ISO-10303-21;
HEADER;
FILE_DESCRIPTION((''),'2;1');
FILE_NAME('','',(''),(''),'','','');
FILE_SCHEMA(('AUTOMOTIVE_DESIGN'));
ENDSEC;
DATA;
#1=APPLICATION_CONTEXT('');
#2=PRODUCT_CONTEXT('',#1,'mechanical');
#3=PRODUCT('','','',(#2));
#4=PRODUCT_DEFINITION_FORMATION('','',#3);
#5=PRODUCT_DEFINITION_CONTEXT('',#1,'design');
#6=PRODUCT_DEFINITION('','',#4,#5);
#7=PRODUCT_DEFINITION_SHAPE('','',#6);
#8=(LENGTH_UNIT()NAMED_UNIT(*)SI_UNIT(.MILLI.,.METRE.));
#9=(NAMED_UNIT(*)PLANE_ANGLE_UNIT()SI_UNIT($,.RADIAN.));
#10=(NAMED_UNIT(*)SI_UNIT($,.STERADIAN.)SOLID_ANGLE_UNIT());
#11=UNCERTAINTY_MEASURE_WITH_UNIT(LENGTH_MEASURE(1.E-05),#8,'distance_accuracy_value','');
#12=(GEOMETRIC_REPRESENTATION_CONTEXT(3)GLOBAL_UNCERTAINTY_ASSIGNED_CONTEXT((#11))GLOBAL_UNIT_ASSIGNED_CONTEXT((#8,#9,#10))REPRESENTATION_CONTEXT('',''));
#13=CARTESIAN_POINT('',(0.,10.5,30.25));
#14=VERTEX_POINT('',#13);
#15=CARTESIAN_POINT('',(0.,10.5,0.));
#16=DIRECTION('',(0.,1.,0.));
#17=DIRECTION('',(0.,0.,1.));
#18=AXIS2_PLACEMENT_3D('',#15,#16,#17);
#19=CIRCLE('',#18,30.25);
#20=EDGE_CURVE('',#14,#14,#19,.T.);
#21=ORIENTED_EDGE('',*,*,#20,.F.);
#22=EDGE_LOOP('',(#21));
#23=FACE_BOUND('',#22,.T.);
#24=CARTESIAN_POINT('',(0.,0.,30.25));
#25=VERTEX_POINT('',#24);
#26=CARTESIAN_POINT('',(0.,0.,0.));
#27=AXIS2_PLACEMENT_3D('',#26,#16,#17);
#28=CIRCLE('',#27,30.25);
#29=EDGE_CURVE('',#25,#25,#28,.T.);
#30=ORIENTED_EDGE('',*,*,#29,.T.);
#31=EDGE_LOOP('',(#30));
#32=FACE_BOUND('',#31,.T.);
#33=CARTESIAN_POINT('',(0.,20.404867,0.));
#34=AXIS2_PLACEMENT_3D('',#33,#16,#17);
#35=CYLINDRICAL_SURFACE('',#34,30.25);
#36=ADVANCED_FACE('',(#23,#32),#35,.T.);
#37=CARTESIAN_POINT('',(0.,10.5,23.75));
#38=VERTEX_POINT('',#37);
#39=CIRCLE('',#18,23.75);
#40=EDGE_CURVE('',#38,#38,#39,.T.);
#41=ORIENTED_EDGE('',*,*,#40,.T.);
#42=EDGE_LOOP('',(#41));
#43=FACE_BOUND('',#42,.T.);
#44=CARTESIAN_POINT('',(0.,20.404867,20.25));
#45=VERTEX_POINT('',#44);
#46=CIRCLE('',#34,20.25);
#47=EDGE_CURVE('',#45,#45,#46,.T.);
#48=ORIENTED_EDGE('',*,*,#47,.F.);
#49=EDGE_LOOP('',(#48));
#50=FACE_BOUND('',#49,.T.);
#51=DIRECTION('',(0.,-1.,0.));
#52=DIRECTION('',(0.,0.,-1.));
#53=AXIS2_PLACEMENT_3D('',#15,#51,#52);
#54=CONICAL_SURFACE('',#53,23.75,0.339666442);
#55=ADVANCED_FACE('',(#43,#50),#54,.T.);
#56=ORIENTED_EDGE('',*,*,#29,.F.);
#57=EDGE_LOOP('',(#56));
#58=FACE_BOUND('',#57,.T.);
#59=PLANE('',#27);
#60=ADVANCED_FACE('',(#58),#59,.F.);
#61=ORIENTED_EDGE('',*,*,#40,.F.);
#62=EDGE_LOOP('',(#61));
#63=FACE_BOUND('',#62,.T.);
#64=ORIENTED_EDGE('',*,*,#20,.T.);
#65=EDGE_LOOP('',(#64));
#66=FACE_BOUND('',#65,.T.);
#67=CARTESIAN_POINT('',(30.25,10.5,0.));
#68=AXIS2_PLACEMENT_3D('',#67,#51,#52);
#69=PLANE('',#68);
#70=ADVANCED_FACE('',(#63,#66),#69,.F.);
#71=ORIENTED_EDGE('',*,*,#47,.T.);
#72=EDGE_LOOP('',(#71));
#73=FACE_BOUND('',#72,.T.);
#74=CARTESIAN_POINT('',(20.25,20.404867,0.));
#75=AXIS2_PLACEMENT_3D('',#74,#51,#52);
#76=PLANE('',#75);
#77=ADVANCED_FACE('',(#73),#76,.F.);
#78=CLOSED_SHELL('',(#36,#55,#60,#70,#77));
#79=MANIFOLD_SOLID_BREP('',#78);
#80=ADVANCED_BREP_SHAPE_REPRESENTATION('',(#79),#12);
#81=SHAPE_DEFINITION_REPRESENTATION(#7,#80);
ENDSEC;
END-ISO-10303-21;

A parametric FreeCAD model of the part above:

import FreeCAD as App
import Part
import Sketcher
from FreeCAD import Vector

doc = App.newDocument("Part")
params = doc.addObject("Spreadsheet::Sheet", "Params")
for row, (alias, value) in enumerate([
    ("sketch1_width", "6.5 mm"),
    ("sketch1_height", "10.5 mm"),
    ("sketch1_width2", "30.25 mm"),
    ("revolution_angle", "360 deg"),
], start=1):
    params.set(f"A{row}", alias)
    params.set(f"B{row}", "=" + value)
    params.setAlias(f"B{row}", alias)

body = doc.addObject("PartDesign::Body", "Body")

# Sketch on XY plane
sketch1 = body.newObject("Sketcher::SketchObject", "Sketch")
sketch1.AttachmentSupport = (doc.getObject("XY_Plane"), [""])
sketch1.MapMode = "FlatFace"
sketch1.addGeometry([
    Part.LineSegment(Vector(0, 0, 0), Vector(30, 0, 0)),  # 0
    Part.LineSegment(Vector(30, 0, 0), Vector(30, 10, 0)),  # 1
    Part.LineSegment(Vector(30, 10, 0), Vector(24, 10, 0)),  # 2
    Part.LineSegment(Vector(24, 10, 0), Vector(20, 20, 0)),  # 3
    Part.LineSegment(Vector(20, 20, 0), Vector(0, 20, 0)),  # 4
    Part.LineSegment(Vector(0, 20, 0), Vector(0, 0, 0)),  # 5
], False)
sketch1.addConstraint([
    Sketcher.Constraint("Coincident", 0, 2, 1, 1),
    Sketcher.Constraint("Coincident", 1, 2, 2, 1),
    Sketcher.Constraint("Coincident", 2, 2, 3, 1),
    Sketcher.Constraint("Coincident", 3, 2, 4, 1),
    Sketcher.Constraint("Coincident", 4, 2, 5, 1),
    Sketcher.Constraint("Coincident", 5, 2, 0, 1),
    Sketcher.Constraint("Horizontal", 0),
    Sketcher.Constraint("Vertical", 1),
    Sketcher.Constraint("Horizontal", 2),
    Sketcher.Constraint("Horizontal", 4),
    Sketcher.Constraint("Vertical", 5),
    Sketcher.Constraint("Coincident", 5, 2, -1, 1),
    Sketcher.Constraint("DistanceX", 2, 2, 2, 1, 6.5),
    Sketcher.Constraint("DistanceY", 1, 1, 1, 2, 10.5),
    Sketcher.Constraint("DistanceX", 3, 2, 1, 2, 10.0),
    Sketcher.Constraint("DistanceX", 0, 1, 0, 2, 30.25),
    Sketcher.Constraint("DistanceY", 5, 2, 5, 1, 20.404867),
])
sketch1.setExpression("Constraints[12]", "Params.sketch1_width")
sketch1.setExpression("Constraints[13]", "Params.sketch1_height")
sketch1.setExpression("Constraints[15]", "Params.sketch1_width2")
revolution = body.newObject("PartDesign::Revolution", "Revolution")
revolution.Profile = sketch1
revolution.ReferenceAxis = (sketch1, ["V_Axis"])
revolution.setExpression("Angle", "Params.revolution_angle")

doc.recompute()
